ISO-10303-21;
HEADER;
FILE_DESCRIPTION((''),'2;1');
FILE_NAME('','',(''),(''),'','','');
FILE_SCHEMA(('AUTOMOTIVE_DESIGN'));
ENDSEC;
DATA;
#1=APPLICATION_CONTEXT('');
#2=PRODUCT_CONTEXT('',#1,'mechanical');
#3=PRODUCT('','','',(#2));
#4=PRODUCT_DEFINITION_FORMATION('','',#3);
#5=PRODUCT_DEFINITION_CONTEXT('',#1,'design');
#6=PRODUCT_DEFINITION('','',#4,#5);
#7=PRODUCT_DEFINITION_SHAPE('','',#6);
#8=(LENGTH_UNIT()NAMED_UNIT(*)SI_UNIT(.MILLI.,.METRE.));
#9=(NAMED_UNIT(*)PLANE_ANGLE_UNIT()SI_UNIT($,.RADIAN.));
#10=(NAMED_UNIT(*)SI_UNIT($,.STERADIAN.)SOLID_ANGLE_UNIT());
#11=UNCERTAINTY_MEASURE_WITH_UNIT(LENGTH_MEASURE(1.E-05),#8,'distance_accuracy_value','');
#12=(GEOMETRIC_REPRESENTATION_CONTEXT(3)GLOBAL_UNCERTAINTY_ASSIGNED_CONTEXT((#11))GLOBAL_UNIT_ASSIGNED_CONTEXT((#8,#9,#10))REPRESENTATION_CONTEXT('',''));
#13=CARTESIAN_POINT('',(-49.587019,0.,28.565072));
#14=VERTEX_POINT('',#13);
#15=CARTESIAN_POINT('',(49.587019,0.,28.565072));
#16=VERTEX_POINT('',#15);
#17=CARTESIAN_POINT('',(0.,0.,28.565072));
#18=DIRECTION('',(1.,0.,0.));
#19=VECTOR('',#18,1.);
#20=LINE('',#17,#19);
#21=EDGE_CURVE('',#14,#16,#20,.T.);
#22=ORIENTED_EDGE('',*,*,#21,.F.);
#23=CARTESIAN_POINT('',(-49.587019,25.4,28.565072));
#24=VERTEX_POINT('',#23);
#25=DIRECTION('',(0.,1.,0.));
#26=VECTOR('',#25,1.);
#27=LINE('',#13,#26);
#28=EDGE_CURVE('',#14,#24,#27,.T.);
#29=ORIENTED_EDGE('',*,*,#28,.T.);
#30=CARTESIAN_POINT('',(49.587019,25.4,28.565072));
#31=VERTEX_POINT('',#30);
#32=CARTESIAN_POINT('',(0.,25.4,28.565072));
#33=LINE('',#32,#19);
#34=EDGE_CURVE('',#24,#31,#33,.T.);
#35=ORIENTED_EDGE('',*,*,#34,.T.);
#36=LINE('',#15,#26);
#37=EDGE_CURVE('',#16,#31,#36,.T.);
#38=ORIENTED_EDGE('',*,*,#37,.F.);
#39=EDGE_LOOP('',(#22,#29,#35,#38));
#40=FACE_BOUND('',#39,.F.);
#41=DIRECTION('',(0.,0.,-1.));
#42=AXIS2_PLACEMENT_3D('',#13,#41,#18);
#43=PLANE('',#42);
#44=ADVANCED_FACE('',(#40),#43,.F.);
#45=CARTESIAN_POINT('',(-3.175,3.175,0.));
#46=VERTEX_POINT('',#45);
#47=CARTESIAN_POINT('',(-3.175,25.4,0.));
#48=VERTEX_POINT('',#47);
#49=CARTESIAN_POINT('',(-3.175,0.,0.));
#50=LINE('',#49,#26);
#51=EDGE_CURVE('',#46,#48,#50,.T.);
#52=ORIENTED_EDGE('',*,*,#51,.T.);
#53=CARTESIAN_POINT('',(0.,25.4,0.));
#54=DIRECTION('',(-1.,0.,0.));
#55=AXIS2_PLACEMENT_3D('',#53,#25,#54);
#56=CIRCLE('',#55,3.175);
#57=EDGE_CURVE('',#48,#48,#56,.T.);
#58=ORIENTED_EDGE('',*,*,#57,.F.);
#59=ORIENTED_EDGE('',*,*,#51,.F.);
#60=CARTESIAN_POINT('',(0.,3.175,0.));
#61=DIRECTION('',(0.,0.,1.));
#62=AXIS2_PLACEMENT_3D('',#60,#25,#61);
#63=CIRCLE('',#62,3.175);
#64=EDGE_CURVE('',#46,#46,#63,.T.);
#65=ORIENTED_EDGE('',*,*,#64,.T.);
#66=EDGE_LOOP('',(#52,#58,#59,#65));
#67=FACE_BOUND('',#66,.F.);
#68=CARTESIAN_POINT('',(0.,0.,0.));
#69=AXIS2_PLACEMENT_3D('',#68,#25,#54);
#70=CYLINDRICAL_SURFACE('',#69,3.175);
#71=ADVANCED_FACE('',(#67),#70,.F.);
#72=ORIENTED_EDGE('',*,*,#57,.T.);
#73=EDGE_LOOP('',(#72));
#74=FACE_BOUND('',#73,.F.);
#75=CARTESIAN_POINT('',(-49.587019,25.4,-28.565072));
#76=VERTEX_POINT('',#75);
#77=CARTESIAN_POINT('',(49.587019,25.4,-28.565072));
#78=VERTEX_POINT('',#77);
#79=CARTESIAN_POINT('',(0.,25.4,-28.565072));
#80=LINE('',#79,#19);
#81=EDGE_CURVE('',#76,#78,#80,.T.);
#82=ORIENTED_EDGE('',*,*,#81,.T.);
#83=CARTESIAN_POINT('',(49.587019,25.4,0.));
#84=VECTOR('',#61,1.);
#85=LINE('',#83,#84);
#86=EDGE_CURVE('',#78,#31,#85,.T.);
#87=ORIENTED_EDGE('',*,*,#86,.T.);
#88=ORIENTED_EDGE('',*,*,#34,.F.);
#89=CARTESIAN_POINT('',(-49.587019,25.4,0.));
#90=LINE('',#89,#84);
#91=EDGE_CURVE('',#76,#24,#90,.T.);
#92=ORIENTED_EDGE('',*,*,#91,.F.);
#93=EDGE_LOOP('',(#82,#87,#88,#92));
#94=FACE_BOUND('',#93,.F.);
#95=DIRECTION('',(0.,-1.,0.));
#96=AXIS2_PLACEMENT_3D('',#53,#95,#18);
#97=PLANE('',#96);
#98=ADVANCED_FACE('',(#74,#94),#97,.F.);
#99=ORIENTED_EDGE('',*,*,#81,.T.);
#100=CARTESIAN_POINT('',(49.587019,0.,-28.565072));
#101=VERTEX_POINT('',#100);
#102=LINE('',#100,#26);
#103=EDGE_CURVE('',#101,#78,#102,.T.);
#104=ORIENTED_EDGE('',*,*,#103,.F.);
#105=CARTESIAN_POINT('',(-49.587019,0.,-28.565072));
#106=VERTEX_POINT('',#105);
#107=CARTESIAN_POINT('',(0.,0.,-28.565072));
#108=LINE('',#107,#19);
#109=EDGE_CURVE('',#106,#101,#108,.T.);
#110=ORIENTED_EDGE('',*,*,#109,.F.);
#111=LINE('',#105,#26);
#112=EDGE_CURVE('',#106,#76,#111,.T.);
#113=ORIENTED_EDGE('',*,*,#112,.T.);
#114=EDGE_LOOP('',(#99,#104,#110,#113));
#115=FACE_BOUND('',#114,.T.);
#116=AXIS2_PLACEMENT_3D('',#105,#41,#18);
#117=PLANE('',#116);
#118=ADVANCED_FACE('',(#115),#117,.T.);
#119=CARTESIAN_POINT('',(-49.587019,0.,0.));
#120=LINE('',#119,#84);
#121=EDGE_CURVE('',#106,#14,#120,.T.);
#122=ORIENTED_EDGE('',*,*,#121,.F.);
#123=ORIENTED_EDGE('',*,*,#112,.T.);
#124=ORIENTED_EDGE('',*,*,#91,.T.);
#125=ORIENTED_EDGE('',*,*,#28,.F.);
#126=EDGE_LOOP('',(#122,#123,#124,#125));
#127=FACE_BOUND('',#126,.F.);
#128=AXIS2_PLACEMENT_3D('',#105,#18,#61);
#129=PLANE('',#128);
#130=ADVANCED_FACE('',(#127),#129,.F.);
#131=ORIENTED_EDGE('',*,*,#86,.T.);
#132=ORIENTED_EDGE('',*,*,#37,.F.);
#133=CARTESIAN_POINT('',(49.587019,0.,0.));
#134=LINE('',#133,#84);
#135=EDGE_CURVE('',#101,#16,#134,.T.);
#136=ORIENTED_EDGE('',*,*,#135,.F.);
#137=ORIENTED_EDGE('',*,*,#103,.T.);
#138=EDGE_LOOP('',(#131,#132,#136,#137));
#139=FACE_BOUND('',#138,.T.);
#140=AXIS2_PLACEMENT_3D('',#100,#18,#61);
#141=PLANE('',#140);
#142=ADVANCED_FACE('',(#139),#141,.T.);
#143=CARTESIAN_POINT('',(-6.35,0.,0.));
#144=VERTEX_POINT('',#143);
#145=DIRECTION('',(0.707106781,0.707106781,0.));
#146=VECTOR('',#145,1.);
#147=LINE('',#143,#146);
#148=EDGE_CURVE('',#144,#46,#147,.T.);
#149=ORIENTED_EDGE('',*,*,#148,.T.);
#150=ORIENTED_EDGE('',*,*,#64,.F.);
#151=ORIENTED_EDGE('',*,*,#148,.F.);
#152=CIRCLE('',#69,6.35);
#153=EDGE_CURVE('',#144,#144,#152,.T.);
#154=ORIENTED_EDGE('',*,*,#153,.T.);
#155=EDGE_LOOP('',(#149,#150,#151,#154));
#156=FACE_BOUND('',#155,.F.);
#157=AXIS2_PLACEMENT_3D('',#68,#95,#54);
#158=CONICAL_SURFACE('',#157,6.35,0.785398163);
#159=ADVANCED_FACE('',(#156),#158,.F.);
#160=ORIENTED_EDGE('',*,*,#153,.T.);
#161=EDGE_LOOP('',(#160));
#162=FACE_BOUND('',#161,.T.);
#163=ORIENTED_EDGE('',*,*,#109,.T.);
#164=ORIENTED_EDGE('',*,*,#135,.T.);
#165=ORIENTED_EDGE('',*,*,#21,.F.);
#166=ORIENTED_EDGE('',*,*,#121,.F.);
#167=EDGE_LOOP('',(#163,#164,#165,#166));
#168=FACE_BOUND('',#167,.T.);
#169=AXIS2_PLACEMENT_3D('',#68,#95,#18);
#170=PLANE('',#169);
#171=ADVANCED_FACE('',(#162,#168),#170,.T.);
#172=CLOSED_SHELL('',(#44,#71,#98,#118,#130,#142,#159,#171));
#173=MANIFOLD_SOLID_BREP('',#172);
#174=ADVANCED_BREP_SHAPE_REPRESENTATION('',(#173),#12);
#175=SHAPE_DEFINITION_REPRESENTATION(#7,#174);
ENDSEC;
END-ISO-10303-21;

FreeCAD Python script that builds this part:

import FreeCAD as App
import Part
import Sketcher
from FreeCAD import Vector
Q = App.Units.Quantity

doc = App.newDocument("Part")
body = doc.addObject("PartDesign::Body", "Body")

sketch1 = body.newObject("Sketcher::SketchObject", "Sketch")
sketch1.AttachmentSupport = (doc.getObject("XZ_Plane"), [""])
sketch1.MapMode = "FlatFace"
sketch1.addGeometry([
    Part.LineSegment(Vector(-50, 29, 0), Vector(-50, -29, 0)),
    Part.LineSegment(Vector(-50, -29, 0), Vector(50, -29, 0)),
    Part.LineSegment(Vector(50, -29, 0), Vector(50, 29, 0)),
    Part.LineSegment(Vector(50, 29, 0), Vector(-50, 29, 0)),
], False)
sketch1.addConstraint([
    Sketcher.Constraint("Coincident", 0, 2, 1, 1),
    Sketcher.Constraint("Coincident", 1, 2, 2, 1),
    Sketcher.Constraint("Coincident", 2, 2, 3, 1),
    Sketcher.Constraint("Coincident", 3, 2, 0, 1),
    Sketcher.Constraint("Vertical", 0),
    Sketcher.Constraint("Horizontal", 1),
    Sketcher.Constraint("Vertical", 2),
    Sketcher.Constraint("Horizontal", 3),
    Sketcher.Constraint("Symmetric", 0, 2, 2, 2, -1, 1),
    Sketcher.Constraint("DistanceX", 1, 1, 1, 2, 99.174038),
    Sketcher.Constraint("DistanceY", 0, 2, 0, 1, 57.130144),
])
pad1 = body.newObject("PartDesign::Pad", "Pad")
pad1.Profile = sketch1
pad1.Length = Q("1 in")
pad1.Reversed = True

sketch2 = body.newObject("Sketcher::SketchObject", "Sketch001")
sketch2.AttachmentSupport = (doc.getObject("XZ_Plane"), [""])
sketch2.MapMode = "FlatFace"
sketch2.addGeometry(Part.Circle(Vector(0, 0, 0), Vector(0, 0, 1), 3.2), False)
sketch2.addConstraint([
    Sketcher.Constraint("Coincident", 0, 3, -1, 1),
    Sketcher.Constraint("Diameter", 0, Q("0.25 in")),
])
doc.recompute()
hole = body.newObject("PartDesign::Hole", "Hole")
hole.Profile = sketch2
hole.ThreadType = "None"
hole.Diameter = Q("0.25 in")
hole.DepthType = "ThroughAll"
hole.HoleCutType = "Countersink"
hole.HoleCutDiameter = Q("0.5 in")
hole.HoleCutCountersinkAngle = 90

doc.recompute()
